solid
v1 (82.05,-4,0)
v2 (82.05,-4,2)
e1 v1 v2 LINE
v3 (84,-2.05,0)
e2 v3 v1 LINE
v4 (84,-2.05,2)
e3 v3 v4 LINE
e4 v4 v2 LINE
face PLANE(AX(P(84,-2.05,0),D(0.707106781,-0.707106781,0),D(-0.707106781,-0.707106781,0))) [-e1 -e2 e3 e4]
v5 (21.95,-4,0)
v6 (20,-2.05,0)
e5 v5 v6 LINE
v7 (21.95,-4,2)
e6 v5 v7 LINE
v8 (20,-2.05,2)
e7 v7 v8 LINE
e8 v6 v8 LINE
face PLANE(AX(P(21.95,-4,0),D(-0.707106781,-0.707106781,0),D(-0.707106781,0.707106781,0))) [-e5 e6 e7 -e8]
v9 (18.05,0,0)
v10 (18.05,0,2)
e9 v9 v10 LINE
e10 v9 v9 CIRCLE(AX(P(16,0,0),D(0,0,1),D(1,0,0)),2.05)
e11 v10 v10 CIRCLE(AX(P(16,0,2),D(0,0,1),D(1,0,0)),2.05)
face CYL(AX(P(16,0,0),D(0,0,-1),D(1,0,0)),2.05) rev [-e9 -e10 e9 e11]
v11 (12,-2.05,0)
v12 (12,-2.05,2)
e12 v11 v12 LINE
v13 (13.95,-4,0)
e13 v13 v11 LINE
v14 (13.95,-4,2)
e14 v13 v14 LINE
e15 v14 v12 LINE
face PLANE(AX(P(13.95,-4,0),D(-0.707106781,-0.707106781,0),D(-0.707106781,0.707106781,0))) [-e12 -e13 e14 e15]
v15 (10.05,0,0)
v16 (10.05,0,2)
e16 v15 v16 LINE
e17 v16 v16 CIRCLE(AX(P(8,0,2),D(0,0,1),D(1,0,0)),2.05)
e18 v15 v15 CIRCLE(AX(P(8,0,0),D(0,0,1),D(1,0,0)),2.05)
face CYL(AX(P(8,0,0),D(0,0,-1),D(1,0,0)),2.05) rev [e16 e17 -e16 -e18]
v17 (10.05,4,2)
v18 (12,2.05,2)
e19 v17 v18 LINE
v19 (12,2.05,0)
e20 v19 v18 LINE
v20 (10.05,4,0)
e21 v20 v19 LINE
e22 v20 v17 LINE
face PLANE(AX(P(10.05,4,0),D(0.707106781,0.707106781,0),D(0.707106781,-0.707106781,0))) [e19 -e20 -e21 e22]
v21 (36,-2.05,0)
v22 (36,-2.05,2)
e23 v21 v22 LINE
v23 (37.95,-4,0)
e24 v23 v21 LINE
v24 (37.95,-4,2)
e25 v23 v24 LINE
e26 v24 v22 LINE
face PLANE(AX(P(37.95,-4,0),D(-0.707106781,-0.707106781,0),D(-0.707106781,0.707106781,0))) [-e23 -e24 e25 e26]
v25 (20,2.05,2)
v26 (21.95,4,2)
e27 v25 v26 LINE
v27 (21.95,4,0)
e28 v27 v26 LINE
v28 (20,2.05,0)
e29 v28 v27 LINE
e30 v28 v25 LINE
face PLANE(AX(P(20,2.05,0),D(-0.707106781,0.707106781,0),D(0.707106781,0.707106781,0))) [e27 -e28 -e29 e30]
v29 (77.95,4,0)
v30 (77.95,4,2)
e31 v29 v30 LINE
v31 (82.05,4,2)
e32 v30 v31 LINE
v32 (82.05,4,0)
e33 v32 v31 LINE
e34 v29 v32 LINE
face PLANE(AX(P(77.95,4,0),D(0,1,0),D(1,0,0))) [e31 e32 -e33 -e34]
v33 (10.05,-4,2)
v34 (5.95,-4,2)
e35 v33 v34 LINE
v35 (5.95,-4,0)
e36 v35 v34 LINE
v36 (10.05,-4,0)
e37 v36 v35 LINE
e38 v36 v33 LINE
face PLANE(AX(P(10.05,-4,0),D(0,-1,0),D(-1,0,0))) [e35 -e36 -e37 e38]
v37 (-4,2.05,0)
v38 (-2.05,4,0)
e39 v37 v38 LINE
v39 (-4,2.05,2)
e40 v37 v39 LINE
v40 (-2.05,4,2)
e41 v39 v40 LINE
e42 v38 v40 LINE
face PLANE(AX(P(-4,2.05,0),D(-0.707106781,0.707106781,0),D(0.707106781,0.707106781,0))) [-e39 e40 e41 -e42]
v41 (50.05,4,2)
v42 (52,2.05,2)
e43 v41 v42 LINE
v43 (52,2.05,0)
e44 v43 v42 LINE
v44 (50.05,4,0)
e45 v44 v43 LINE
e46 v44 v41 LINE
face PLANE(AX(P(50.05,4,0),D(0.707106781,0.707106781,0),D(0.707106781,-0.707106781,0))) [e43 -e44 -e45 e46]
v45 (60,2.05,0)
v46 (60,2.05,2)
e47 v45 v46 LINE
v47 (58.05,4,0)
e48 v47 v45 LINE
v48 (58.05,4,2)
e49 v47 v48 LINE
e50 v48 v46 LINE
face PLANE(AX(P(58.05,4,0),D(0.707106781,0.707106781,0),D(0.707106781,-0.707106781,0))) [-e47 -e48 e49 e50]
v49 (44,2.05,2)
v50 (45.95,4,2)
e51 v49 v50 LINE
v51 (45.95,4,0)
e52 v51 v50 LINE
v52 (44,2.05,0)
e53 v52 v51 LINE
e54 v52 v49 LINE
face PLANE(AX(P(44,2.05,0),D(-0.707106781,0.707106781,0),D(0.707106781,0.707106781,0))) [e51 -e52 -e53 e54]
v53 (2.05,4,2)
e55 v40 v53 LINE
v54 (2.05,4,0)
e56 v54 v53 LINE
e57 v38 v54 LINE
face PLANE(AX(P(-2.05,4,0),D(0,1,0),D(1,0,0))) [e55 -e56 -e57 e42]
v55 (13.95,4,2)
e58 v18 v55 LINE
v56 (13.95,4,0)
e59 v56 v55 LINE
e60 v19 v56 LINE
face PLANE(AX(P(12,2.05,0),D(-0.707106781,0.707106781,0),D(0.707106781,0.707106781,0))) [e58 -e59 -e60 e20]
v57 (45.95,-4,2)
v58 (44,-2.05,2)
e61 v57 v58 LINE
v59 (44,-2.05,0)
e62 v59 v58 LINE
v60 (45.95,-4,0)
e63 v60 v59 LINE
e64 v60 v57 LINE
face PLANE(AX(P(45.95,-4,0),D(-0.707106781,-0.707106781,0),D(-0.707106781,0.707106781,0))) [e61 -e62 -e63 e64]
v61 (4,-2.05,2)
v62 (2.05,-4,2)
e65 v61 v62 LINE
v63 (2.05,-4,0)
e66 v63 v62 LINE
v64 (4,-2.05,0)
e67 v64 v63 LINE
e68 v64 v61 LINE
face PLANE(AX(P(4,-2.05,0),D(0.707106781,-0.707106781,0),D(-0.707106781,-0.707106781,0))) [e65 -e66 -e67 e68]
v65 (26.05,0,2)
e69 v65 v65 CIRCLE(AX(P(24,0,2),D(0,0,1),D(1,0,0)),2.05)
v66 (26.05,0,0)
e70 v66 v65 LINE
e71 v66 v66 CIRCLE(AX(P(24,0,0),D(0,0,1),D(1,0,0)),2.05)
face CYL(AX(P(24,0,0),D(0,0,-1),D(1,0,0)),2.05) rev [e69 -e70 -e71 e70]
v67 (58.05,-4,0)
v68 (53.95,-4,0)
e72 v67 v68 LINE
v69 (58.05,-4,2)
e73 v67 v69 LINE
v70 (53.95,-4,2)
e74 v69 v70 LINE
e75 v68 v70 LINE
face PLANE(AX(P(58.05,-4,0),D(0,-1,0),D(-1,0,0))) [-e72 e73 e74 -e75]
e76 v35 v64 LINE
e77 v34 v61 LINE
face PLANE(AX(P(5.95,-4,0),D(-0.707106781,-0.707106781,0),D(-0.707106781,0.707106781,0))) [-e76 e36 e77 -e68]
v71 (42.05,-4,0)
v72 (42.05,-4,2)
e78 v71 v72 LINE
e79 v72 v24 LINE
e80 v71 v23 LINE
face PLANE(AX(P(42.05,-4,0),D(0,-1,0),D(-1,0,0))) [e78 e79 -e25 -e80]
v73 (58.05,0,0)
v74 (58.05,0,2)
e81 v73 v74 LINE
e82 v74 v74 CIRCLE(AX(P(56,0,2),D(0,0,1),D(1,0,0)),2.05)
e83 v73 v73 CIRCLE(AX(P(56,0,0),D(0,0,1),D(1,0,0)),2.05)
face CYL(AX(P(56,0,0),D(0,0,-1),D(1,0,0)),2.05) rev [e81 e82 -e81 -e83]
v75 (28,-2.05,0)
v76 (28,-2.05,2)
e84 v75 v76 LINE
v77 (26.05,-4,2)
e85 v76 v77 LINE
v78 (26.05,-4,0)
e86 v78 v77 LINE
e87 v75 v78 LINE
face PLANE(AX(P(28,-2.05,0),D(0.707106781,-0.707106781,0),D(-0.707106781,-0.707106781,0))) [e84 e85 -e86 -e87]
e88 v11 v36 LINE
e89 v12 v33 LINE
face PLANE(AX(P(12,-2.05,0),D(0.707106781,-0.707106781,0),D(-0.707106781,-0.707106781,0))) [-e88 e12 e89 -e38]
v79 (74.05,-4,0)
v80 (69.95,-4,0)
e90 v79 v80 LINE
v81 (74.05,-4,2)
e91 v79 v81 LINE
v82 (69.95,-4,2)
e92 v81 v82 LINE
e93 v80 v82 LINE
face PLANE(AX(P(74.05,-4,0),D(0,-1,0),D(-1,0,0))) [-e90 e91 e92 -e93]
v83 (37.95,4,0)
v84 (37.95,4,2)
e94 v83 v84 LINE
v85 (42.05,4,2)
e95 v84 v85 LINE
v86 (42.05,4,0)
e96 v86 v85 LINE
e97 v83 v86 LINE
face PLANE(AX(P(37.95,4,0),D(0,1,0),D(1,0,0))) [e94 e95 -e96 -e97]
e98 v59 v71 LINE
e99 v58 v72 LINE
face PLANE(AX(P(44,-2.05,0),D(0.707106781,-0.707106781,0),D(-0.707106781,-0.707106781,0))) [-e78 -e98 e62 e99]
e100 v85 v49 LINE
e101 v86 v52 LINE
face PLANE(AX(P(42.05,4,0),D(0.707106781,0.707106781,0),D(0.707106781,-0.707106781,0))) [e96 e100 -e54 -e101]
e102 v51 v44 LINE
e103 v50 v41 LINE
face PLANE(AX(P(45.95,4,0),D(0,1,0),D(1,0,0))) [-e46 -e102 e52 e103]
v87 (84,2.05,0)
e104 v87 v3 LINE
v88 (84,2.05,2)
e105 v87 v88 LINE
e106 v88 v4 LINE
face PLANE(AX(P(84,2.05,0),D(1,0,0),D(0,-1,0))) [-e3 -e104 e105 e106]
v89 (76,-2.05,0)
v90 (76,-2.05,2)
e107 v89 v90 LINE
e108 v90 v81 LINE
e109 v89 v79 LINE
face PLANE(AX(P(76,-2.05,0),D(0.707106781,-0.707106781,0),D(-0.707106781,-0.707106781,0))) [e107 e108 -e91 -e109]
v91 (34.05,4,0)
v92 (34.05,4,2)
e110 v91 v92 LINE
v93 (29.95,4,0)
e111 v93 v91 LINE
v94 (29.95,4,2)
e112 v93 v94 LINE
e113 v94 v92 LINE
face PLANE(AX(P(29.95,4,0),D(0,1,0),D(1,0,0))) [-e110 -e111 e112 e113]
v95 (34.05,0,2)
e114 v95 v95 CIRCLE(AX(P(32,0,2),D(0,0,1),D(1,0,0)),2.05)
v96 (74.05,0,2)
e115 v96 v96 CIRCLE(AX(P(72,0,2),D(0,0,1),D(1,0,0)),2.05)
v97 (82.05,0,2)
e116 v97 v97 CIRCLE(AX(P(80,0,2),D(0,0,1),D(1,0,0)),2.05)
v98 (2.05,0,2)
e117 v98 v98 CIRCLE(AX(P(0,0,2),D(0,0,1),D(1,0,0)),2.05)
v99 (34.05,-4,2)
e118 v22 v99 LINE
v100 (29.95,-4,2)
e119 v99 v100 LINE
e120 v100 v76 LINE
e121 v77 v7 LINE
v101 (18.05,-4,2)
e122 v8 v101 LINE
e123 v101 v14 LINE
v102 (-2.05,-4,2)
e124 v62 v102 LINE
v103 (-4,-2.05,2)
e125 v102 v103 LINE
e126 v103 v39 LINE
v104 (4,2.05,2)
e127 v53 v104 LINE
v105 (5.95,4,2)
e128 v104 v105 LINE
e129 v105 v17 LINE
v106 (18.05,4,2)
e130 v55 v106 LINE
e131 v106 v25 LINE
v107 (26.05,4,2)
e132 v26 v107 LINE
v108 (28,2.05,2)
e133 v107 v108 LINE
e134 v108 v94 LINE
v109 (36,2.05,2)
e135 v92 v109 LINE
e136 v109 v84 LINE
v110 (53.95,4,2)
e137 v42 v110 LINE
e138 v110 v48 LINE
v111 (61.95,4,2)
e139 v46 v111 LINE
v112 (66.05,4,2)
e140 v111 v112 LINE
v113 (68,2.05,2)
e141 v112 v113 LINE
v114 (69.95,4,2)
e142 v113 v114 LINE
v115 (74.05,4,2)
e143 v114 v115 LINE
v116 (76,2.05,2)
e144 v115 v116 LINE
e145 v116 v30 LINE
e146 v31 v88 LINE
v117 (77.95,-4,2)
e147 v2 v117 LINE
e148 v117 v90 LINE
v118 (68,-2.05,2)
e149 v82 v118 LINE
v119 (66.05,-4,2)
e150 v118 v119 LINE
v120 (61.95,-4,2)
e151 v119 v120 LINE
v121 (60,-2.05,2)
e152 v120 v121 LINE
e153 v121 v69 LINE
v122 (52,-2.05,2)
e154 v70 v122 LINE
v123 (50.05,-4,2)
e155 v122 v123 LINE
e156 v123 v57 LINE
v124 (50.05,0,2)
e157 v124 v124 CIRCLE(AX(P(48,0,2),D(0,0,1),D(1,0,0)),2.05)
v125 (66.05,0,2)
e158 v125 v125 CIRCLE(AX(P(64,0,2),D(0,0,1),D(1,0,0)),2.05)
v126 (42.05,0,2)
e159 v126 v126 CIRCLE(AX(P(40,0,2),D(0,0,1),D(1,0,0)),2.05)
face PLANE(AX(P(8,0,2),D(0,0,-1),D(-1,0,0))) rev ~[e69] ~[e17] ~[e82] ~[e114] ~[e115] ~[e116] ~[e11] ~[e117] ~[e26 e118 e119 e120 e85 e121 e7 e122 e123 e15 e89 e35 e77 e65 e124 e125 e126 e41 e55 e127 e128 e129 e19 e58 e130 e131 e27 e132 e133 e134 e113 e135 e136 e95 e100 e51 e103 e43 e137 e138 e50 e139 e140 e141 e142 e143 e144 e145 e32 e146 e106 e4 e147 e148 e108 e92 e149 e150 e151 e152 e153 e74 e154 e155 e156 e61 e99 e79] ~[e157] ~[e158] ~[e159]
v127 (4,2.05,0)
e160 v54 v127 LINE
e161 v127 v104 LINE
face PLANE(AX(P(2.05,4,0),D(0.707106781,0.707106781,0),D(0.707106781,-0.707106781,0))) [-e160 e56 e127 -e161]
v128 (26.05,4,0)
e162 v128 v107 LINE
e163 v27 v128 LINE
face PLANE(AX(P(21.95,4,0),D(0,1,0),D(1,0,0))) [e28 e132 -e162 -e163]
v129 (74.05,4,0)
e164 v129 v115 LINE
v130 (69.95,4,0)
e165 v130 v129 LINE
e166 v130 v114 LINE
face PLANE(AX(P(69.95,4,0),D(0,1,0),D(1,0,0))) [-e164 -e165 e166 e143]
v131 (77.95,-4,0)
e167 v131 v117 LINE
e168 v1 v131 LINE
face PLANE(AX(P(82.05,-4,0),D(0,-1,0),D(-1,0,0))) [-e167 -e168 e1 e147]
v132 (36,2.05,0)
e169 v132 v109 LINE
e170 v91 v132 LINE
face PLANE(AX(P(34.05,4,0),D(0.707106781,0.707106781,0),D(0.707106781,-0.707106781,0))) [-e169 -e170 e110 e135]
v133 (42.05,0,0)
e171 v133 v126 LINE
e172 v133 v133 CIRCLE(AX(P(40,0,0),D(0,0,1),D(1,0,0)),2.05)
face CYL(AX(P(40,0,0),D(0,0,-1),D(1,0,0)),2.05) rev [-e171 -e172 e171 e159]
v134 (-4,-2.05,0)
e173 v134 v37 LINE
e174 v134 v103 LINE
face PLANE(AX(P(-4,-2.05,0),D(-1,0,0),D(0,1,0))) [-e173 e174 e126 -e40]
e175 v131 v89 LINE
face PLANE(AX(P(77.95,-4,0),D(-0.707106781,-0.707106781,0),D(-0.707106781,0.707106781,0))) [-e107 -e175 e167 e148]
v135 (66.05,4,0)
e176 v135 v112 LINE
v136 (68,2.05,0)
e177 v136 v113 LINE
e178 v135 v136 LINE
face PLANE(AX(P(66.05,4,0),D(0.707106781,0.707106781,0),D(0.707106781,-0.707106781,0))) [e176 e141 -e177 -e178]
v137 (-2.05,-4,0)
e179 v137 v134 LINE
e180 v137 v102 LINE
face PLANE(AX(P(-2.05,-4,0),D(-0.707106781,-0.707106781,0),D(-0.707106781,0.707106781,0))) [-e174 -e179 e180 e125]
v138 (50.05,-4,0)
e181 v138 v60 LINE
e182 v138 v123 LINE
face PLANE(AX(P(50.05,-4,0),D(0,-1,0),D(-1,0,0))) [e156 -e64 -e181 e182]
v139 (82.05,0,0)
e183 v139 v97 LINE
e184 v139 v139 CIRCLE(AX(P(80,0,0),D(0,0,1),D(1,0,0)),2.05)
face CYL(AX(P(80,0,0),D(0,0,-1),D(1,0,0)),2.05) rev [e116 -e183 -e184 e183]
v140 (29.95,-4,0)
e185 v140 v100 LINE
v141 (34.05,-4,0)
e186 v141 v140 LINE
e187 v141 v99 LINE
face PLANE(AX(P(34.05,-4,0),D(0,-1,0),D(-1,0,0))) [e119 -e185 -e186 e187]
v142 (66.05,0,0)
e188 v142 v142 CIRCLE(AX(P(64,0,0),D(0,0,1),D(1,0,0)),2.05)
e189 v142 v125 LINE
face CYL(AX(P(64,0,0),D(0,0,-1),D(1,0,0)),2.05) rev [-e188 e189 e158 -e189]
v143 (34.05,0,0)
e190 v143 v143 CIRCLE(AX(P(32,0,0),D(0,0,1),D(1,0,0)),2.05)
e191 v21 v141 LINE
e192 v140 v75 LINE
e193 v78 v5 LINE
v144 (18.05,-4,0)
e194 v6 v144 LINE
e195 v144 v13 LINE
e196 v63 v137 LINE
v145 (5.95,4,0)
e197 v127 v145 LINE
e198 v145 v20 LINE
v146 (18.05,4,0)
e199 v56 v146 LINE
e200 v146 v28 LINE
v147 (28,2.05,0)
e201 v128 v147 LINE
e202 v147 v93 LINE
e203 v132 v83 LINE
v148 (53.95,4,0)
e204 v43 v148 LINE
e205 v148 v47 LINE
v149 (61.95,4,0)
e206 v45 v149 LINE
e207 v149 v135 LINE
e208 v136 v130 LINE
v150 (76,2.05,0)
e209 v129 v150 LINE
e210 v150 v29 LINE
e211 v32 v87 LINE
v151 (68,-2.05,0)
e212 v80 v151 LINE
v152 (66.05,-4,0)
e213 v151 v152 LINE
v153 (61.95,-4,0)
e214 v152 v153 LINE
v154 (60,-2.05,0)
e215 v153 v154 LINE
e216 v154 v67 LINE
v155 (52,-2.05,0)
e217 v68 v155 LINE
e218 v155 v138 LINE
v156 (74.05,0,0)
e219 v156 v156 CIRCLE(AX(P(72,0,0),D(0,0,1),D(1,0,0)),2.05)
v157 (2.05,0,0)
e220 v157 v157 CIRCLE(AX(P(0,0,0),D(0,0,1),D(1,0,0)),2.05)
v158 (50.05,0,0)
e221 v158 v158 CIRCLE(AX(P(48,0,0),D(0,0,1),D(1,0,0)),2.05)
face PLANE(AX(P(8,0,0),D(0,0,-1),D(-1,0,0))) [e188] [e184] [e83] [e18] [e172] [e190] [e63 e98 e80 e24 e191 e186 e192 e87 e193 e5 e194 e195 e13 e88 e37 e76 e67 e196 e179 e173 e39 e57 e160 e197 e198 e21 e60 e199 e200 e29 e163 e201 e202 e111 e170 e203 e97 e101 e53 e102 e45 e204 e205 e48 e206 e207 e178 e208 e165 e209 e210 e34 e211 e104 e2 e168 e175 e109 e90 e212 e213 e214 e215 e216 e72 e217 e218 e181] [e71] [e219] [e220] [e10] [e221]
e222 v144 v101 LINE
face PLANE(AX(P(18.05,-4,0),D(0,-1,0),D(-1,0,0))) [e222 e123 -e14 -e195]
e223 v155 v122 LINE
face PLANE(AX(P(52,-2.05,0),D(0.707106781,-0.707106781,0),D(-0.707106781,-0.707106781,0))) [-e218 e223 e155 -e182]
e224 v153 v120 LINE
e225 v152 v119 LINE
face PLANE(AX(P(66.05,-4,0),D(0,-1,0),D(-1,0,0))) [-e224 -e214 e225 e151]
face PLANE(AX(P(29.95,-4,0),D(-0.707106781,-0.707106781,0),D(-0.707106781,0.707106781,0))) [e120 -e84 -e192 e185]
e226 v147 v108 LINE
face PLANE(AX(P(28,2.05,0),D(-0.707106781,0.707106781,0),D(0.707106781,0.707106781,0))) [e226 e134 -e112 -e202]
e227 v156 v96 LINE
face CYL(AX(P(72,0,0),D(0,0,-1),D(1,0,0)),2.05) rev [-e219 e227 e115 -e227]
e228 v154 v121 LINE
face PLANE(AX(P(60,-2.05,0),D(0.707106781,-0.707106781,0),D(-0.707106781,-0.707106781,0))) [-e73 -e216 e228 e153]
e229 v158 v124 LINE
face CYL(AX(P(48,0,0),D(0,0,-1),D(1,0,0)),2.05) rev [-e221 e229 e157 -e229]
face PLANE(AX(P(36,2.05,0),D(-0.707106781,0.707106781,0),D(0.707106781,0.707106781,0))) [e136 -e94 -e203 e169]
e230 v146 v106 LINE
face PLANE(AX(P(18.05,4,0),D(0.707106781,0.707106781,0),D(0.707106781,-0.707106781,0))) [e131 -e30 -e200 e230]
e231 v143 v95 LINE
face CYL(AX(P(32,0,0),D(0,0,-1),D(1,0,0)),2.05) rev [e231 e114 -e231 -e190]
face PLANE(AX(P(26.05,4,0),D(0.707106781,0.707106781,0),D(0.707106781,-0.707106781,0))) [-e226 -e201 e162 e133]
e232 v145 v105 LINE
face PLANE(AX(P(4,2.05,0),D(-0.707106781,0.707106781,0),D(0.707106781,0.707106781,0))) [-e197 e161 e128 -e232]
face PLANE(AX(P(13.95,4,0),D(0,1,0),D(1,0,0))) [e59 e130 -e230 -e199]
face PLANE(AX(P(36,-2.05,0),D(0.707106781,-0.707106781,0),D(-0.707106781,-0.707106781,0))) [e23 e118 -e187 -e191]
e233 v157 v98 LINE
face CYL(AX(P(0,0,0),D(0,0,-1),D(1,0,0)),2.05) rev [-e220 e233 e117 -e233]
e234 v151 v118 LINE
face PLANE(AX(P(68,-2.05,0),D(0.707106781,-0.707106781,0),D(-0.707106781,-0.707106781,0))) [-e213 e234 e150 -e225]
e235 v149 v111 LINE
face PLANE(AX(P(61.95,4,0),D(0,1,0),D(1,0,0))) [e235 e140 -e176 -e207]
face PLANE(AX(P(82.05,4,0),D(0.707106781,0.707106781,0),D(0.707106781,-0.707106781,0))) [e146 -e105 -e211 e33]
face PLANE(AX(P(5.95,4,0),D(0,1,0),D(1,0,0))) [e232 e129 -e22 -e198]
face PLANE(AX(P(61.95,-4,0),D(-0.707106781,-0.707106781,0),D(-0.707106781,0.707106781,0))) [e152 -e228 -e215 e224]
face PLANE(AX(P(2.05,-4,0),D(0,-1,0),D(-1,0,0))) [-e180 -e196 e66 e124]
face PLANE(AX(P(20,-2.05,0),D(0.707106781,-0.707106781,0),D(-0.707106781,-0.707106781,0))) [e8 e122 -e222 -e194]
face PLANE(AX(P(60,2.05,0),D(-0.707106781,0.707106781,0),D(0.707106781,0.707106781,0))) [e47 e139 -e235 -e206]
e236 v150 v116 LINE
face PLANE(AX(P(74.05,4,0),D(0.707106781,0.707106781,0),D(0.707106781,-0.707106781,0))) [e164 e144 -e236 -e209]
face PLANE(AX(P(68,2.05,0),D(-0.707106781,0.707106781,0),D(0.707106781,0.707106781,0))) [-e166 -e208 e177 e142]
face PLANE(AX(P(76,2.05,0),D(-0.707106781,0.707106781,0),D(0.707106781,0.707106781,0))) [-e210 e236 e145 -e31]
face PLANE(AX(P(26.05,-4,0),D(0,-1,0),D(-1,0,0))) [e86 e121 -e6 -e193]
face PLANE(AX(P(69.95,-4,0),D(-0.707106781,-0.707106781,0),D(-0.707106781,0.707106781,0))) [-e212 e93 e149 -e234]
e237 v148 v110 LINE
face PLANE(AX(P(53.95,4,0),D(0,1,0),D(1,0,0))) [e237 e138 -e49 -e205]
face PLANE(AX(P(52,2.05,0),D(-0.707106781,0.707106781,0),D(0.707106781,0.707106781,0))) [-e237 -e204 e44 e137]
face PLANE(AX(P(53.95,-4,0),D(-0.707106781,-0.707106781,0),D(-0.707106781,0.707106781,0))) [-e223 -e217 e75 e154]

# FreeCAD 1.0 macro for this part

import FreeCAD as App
import Part
import Sketcher
from FreeCAD import Vector
Q = App.Units.Quantity


def add_polygon(sketch, points):
    """Adds a closed chain of lines whose ends are joined by coincident constraints."""
    first, n = sketch.GeometryCount, len(points)
    for a, b in zip(points, points[1:] + points[:1]):
        sketch.addGeometry(Part.LineSegment(App.Vector(*a, 0), App.Vector(*b, 0)), False)
    for i in range(n):
        sketch.addConstraint(Sketcher.Constraint("Coincident", first + i, 2, first + (i + 1) % n, 1))

doc = App.newDocument("Part")
body = doc.addObject("PartDesign::Body", "Body")

# Sketch on XY plane
sketch1 = doc.addObject("Sketcher::SketchObject", "Sketch")
body.addObject(sketch1)
sketch1.AttachmentSupport = (doc.XY_Plane, [""])
sketch1.MapMode = "FlatFace"
add_polygon(sketch1, [(-4, -2), (-2, -4), (2, -4), (4, -2), (4, 2), (2, 4), (-2, 4), (-4, 2)])  # lines 0-7
sketch1.addGeometry(Part.Circle(Vector(0, 0, 0), Vector(0, 0, 1), 2), False)  # 8
sketch1.addConstraint([
    Sketcher.Constraint("Horizontal", 1),
    Sketcher.Constraint("Vertical", 3),
    Sketcher.Constraint("Horizontal", 5),
    Sketcher.Constraint("Vertical", 7),
    Sketcher.Constraint("Coincident", 8, 3, -1, 1),
    Sketcher.Constraint("Symmetric", 0, 2, 4, 2, -1, 1),
    Sketcher.Constraint("Symmetric", 2, 2, 6, 2, -1, 1),
    Sketcher.Constraint("Perpendicular", 0, 2),
    Sketcher.Constraint("Perpendicular", 2, 4),
    Sketcher.Constraint("Perpendicular", 4, 6),
    Sketcher.Constraint("Horizontal", 3, 2, 6, 2),
    Sketcher.Constraint("Vertical", 1, 2, 4, 2),
    Sketcher.Constraint("Equal", 5, 3),
    Sketcher.Constraint("Diameter", 8, Q("4.1 mm")),
    Sketcher.Constraint("DistanceX", 1, 1, 1, 2, Q("4.1 mm")),
    Sketcher.Constraint("DistanceY", 0, 2, -1, 1, Q("4 mm")),
])
pad1 = doc.addObject("PartDesign::Pad", "Pad")
body.addObject(pad1)
pad1.Profile = sketch1
pad1.Length = 2
doc.recompute()

linearpattern = doc.addObject("PartDesign::LinearPattern", "LinearPattern")
body.addObject(linearpattern)
linearpattern.Originals = [pad1]
linearpattern.Direction = (doc.X_Axis, [""])
linearpattern.Mode = "offset"
linearpattern.Offset = 8
linearpattern.Occurrences = 11
body.Tip = linearpattern

doc.recompute()
